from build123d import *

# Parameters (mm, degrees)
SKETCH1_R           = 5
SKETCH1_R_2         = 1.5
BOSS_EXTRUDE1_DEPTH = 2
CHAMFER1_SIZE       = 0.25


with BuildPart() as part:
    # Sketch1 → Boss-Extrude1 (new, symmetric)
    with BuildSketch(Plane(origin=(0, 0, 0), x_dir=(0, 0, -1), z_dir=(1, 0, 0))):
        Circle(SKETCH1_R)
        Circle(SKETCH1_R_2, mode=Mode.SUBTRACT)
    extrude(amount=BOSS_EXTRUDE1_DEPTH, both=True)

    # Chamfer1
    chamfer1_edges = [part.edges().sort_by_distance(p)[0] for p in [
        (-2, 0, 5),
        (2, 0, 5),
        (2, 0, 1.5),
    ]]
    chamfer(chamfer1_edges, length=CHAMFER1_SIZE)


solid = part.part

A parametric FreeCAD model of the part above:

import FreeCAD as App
import Part
import Sketcher


def edges_at(feature, points):
    """Names of the edges that pass closest to the given points."""
    edges = feature.Shape.Edges
    near = lambda p: min(range(len(edges)), key=lambda i: edges[i].distToShape(Part.Vertex(*p))[0])
    return sorted({f"Edge{near(p) + 1}" for p in points})

doc = App.newDocument("Part")
body = doc.addObject("PartDesign::Body", "Body")

# Sketch on YZ plane
sketch1 = body.newObject("Sketcher::SketchObject", "Sketch")
sketch1.AttachmentSupport = (doc.getObject("YZ_Plane"), [""])
sketch1.MapMode = "FlatFace"
sketch1.addGeometry(Part.Circle(App.Vector(0, 0, 0), App.Vector(0, 0, 1), 5), False)
sketch1.addGeometry(Part.Circle(App.Vector(0, 0, 0), App.Vector(0, 0, 1), 1.5), False)
sketch1.addConstraint(Sketcher.Constraint("Coincident", 0, 3, -1, 1))
sketch1.addConstraint(Sketcher.Constraint("Coincident", 1, 3, -1, 1))
sketch1.addConstraint(Sketcher.Constraint("Diameter", 0, 10.0))
sketch1.addConstraint(Sketcher.Constraint("Diameter", 1, 3.0))
pad1 = body.newObject("PartDesign::Pad", "Pad")
pad1.Profile = sketch1
pad1.Length = 4
pad1.Midplane = True
doc.recompute()

chamfer = body.newObject("PartDesign::Chamfer", "Chamfer")
chamfer.Base = (pad1, edges_at(pad1, [(-2, 0, 5), (2, 0, 5), (2, 0, 1.5)]))
chamfer.Size = 0.25

doc.recompute()
